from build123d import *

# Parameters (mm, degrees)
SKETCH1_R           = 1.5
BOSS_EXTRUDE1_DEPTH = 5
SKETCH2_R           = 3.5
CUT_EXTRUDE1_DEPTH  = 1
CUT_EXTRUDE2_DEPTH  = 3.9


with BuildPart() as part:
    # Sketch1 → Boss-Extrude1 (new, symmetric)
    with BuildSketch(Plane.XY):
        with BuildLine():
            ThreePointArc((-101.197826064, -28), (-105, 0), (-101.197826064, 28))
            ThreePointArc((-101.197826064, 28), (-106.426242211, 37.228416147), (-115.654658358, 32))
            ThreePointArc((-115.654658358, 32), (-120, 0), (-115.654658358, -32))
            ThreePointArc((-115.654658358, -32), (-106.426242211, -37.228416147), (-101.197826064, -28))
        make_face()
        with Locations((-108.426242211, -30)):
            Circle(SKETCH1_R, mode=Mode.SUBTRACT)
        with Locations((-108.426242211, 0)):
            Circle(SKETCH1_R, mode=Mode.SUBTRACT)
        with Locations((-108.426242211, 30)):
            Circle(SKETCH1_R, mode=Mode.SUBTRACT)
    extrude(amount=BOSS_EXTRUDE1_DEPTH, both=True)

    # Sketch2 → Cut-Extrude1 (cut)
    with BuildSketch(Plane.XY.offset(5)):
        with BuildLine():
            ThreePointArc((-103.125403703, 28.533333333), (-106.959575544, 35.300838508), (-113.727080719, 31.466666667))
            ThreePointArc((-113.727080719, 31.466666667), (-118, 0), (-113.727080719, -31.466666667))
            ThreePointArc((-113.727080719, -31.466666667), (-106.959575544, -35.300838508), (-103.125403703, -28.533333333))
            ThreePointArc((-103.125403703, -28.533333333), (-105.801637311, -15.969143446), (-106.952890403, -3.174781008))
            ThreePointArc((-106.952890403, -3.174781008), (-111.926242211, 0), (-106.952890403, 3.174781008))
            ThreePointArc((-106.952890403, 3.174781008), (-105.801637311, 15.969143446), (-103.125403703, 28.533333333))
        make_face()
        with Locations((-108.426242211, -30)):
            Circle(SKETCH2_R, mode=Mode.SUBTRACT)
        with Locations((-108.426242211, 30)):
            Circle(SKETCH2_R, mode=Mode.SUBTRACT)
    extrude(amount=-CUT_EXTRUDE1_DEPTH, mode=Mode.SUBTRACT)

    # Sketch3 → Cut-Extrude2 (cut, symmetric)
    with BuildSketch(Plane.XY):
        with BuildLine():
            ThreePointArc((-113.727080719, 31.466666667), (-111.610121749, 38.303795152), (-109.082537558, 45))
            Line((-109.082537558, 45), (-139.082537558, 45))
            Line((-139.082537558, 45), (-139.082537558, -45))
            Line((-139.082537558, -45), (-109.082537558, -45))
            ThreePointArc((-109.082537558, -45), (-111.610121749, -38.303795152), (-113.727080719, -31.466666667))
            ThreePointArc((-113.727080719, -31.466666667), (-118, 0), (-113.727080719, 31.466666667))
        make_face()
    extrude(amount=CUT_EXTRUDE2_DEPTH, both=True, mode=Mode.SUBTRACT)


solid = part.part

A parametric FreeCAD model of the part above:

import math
import FreeCAD as App
import Part
import Sketcher
from FreeCAD import Vector
Q = App.Units.Quantity

doc = App.newDocument("Part")
body = doc.addObject("PartDesign::Body", "Body")

sketch1 = body.newObject("Sketcher::SketchObject", "Sketch")
sketch1.AttachmentSupport = (doc.getObject("XY_Plane"), [""])
sketch1.MapMode = "FlatFace"
sketch1.addGeometry([
    Part.ArcOfCircle(Part.Circle(Vector(0, 0, 0), Vector(0, 0, 1), 105), math.radians(165), math.radians(195)),
    Part.ArcOfCircle(Part.Circle(Vector(-108.4, 30, 0), Vector(0, 0, 1), 7.5), math.radians(-15), math.radians(165)),
    Part.ArcOfCircle(Part.Circle(Vector(0, 0, 0), Vector(0, 0, 1), 120), math.radians(165), math.radians(195)),
    Part.ArcOfCircle(Part.Circle(Vector(-108.4, -30, 0), Vector(0, 0, 1), 7.5), math.radians(-165), math.radians(15)),
    Part.Circle(Vector(-108.4, -30, 0), Vector(0, 0, 1), 1.5),
    Part.Circle(Vector(-108.4, 0, 0), Vector(0, 0, 1), 1.5),
    Part.Circle(Vector(-108.4, 30, 0), Vector(0, 0, 1), 1.5),
], False)
sketch1.addConstraint([
    Sketcher.Constraint("Tangent", 0, 1, 1, 1),
    Sketcher.Constraint("Tangent", 1, 2, 2, 1),
    Sketcher.Constraint("Tangent", 2, 2, 3, 1),
    Sketcher.Constraint("Tangent", 3, 2, 0, 2),
    Sketcher.Constraint("Coincident", 0, 3, -1, 1),
    Sketcher.Constraint("Coincident", 2, 3, -1, 1),
    Sketcher.Constraint("Coincident", 4, 3, 3, 3),
    Sketcher.Constraint("Coincident", 6, 3, 1, 3),
    Sketcher.Constraint("Equal", 4, 5),
    Sketcher.Constraint("Equal", 5, 6),
    Sketcher.Constraint("PointOnObject", 5, 3, -1),
    Sketcher.Constraint("Vertical", 1, 3, 3, 3),
    Sketcher.Constraint("Vertical", 4, 3, 5, 3),
    Sketcher.Constraint("Diameter", 4, Q("3 mm")),
    Sketcher.Constraint("Radius", 0, Q("105 mm")),
    Sketcher.Constraint("Radius", 2, Q("120 mm")),
    Sketcher.Constraint("DistanceY", -1, 1, 1, 3, Q("30 mm")),
])
pad1 = body.newObject("PartDesign::Pad", "Pad")
pad1.Profile = sketch1
pad1.Length = 10
pad1.Midplane = True

sketch2 = body.newObject("Sketcher::SketchObject", "Sketch001")
sketch2.AttachmentSupport = (doc.getObject("XY_Plane"), [""])
sketch2.MapMode = "FlatFace"
sketch2.AttachmentOffset = App.Placement(Vector(0, 0, 5), App.Rotation())
sketch2.addGeometry([
    Part.ArcOfCircle(Part.Circle(Vector(-108.4, 30, 0), Vector(0, 0, 1), 5.5), math.radians(-15), math.radians(165)),
    Part.ArcOfCircle(Part.Circle(Vector(0, 0, 0), Vector(0, 0, 1), 118), math.radians(165), math.radians(195)),
    Part.ArcOfCircle(Part.Circle(Vector(-108.4, -30, 0), Vector(0, 0, 1), 5.5), math.radians(-165), math.radians(15)),
    Part.ArcOfCircle(Part.Circle(Vector(0, 0, 0), Vector(0, 0, 1), 107), math.radians(-178.3), math.radians(-164.53)),
    Part.ArcOfCircle(Part.Circle(Vector(-108.4, 0, 0), Vector(0, 0, 1), 3.5), math.radians(65), math.radians(295)),
    Part.ArcOfCircle(Part.Circle(Vector(0, 0, 0), Vector(0, 0, 1), 107), math.radians(164.53), math.radians(178.3)),
    Part.Circle(Vector(-108.4, -30, 0), Vector(0, 0, 1), 3.5),
    Part.Circle(Vector(-108.4, 30, 0), Vector(0, 0, 1), 3.5),
], False)
sketch2.addConstraint([
    Sketcher.Constraint("Tangent", 0, 2, 1, 1),
    Sketcher.Constraint("Tangent", 1, 2, 2, 1),
    Sketcher.Constraint("Tangent", 2, 2, 3, 2),
    Sketcher.Constraint("Coincident", 3, 1, 4, 2),
    Sketcher.Constraint("Coincident", 4, 1, 5, 2),
    Sketcher.Constraint("Tangent", 5, 1, 0, 1),
    Sketcher.Constraint("Coincident", 1, 3, -1, 1),
    Sketcher.Constraint("Coincident", 3, 3, -1, 1),
    Sketcher.Constraint("Coincident", 5, 3, -1, 1),
    Sketcher.Constraint("Coincident", 6, 3, 2, 3),
    Sketcher.Constraint("Coincident", 7, 3, 0, 3),
    Sketcher.Constraint("Equal", 0, 2),
    Sketcher.Constraint("Equal", 4, 6),
    Sketcher.Constraint("Equal", 6, 7),
    Sketcher.Constraint("PointOnObject", 4, 3, -1),
    Sketcher.Constraint("Vertical", 0, 3, 2, 3),
    Sketcher.Constraint("Vertical", 2, 3, 4, 3),
    Sketcher.Constraint("Diameter", 6, Q("7 mm")),
    Sketcher.Constraint("Radius", 1, Q("118 mm")),
    Sketcher.Constraint("Radius", 3, Q("107 mm")),
    Sketcher.Constraint("DistanceY", -1, 1, 0, 3, Q("30 mm")),
])
pocket1 = body.newObject("PartDesign::Pocket", "Pocket")
pocket1.Profile = sketch2
pocket1.Length = 1

sketch3 = body.newObject("Sketcher::SketchObject", "Sketch002")
sketch3.AttachmentSupport = (doc.getObject("XY_Plane"), [""])
sketch3.MapMode = "FlatFace"
sketch3.addGeometry([
    Part.ArcOfCircle(Part.Circle(Vector(0, 0, 0), Vector(0, 0, 1), 118), math.radians(157.58), math.radians(164.53)),
    Part.LineSegment(Vector(-109, 45, 0), Vector(-139, 45, 0)),
    Part.LineSegment(Vector(-139, 45, 0), Vector(-139, -45, 0)),
    Part.LineSegment(Vector(-139, -45, 0), Vector(-109, -45, 0)),
    Part.ArcOfCircle(Part.Circle(Vector(0, 0, 0), Vector(0, 0, 1), 118), math.radians(-164.53), math.radians(-157.58)),
    Part.ArcOfCircle(Part.Circle(Vector(0, 0, 0), Vector(0, 0, 1), 118), math.radians(165), math.radians(195)),
], False)
sketch3.addConstraint([
    Sketcher.Constraint("Coincident", 0, 1, 1, 1),
    Sketcher.Constraint("Coincident", 1, 2, 2, 1),
    Sketcher.Constraint("Coincident", 2, 2, 3, 1),
    Sketcher.Constraint("Coincident", 3, 2, 4, 2),
    Sketcher.Constraint("Tangent", 4, 1, 5, 2),
    Sketcher.Constraint("Tangent", 5, 1, 0, 2),
    Sketcher.Constraint("Horizontal", 1),
    Sketcher.Constraint("Vertical", 2),
    Sketcher.Constraint("Horizontal", 3),
    Sketcher.Constraint("Coincident", 0, 3, -1, 1),
    Sketcher.Constraint("Coincident", 4, 3, -1, 1),
    Sketcher.Constraint("Vertical", 0, 1, 3, 2),
    Sketcher.Constraint("Vertical", 4, 1, 5, 1),
    Sketcher.Constraint("Radius", 0, Q("118 mm")),
    Sketcher.Constraint("DistanceX", 1, 2, 1, 1, Q("30 mm")),
    Sketcher.Constraint("DistanceY", 2, 2, 2, 1, Q("90 mm")),
    Sketcher.Constraint("DistanceX", 4, 1, -1, 1, Q("113.727081 mm")),
])
pocket2 = body.newObject("PartDesign::Pocket", "Pocket001")
pocket2.Profile = sketch3
pocket2.Length = 7.8
pocket2.Midplane = True

doc.recompute()
